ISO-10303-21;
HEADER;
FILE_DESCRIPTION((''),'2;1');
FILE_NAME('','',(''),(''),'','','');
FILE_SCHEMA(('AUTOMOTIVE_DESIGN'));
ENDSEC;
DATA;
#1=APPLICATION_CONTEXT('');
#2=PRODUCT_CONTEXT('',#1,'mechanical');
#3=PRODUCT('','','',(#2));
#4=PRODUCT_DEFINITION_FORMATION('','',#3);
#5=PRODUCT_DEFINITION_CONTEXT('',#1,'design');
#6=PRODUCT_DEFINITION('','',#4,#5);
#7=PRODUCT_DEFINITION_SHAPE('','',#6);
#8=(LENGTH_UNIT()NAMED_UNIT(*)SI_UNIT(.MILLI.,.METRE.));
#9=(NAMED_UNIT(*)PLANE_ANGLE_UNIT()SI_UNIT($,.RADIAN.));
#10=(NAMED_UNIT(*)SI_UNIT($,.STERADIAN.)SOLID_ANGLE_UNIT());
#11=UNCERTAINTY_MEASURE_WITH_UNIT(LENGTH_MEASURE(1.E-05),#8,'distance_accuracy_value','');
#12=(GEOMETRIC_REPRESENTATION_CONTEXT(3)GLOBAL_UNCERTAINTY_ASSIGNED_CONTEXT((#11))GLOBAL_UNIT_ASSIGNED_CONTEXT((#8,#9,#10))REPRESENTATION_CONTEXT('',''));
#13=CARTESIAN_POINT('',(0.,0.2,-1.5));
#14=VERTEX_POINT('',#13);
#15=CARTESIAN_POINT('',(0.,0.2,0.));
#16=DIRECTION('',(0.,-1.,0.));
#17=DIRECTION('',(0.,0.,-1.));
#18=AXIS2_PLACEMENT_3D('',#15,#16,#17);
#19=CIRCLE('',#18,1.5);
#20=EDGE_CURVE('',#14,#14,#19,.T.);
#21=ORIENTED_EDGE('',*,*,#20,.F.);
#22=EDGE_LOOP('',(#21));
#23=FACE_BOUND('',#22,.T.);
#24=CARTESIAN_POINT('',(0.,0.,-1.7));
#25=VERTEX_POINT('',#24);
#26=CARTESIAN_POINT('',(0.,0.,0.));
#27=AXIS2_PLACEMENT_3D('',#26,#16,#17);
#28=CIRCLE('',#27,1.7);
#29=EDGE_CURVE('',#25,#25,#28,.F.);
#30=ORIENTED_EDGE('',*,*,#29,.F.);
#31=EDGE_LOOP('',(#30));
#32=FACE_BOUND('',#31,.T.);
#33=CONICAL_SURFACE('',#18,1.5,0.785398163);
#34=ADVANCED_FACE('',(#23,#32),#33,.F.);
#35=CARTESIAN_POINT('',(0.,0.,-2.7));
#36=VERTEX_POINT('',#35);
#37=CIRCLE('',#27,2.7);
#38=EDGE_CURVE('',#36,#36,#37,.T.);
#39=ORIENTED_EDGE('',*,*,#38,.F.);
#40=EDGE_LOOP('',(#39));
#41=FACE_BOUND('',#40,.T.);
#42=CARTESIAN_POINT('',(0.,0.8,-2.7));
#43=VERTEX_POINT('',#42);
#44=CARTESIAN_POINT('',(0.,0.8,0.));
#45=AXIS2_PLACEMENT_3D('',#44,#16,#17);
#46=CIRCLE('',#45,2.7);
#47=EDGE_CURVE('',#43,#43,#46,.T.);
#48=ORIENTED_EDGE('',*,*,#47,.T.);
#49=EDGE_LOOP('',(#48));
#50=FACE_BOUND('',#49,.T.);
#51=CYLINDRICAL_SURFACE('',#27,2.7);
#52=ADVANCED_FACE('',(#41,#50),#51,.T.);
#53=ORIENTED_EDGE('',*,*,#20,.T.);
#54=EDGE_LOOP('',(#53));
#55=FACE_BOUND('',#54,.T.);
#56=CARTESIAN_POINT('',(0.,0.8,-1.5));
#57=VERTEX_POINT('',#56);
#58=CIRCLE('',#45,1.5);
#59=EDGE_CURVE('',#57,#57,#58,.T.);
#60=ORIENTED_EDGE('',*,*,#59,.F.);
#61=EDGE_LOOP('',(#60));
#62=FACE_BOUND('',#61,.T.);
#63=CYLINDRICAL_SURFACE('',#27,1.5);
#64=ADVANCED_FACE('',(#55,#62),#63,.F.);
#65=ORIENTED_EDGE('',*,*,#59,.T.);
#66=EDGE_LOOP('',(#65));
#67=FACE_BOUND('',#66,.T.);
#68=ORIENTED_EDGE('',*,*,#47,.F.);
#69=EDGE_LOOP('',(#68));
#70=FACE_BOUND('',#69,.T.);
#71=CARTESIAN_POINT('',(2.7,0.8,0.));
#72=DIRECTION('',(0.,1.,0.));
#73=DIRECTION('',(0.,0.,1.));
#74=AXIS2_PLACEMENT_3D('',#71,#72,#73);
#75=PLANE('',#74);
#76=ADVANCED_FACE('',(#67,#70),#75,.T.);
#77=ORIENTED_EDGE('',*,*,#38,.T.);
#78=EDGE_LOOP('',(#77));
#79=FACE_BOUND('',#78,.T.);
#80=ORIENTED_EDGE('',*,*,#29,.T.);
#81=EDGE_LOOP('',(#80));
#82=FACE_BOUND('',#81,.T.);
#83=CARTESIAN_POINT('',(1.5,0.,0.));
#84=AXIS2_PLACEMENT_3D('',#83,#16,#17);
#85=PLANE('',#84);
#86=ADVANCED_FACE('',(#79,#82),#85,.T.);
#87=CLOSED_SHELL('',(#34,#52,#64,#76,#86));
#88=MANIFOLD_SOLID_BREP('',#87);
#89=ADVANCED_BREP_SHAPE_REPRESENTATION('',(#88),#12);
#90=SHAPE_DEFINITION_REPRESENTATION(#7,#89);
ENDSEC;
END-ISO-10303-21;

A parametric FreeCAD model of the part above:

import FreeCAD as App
import Part
import Sketcher

V = App.Vector


def edges_at(feature, points):
    """Names of the edges that pass closest to the given points."""
    edges = feature.Shape.Edges
    near = lambda p: min(range(len(edges)), key=lambda i: edges[i].distToShape(Part.Vertex(*p))[0])
    return sorted({f"Edge{near(p) + 1}" for p in points})

doc = App.newDocument("Part")
body = doc.addObject("PartDesign::Body", "Body")

# Sketch on XY plane
sketch1 = body.newObject("Sketcher::SketchObject", "Sketch")
sketch1.AttachmentSupport = (doc.getObject("XY_Plane"), [""])
sketch1.MapMode = "FlatFace"
sketch1.addGeometry(Part.LineSegment(V(1.5, 0.8, 0), V(1.5, 0, 0)), False)
sketch1.addGeometry(Part.LineSegment(V(1.5, 0, 0), V(2.7, 0, 0)), False)
sketch1.addGeometry(Part.LineSegment(V(2.7, 0, 0), V(2.7, 0.8, 0)), False)
sketch1.addGeometry(Part.LineSegment(V(2.7, 0.8, 0), V(1.5, 0.8, 0)), False)
sketch1.addConstraint(Sketcher.Constraint("Coincident", 0, 2, 1, 1))
sketch1.addConstraint(Sketcher.Constraint("Coincident", 1, 2, 2, 1))
sketch1.addConstraint(Sketcher.Constraint("Coincident", 2, 2, 3, 1))
sketch1.addConstraint(Sketcher.Constraint("Coincident", 3, 2, 0, 1))
sketch1.addConstraint(Sketcher.Constraint("Vertical", 0))
sketch1.addConstraint(Sketcher.Constraint("Horizontal", 1))
sketch1.addConstraint(Sketcher.Constraint("Vertical", 2))
sketch1.addConstraint(Sketcher.Constraint("Horizontal", 3))
sketch1.addConstraint(Sketcher.Constraint("PointOnObject", 0, 2, -1))
sketch1.addConstraint(Sketcher.Constraint("DistanceX", 1, 1, 1, 2, 1.2))
sketch1.addConstraint(Sketcher.Constraint("DistanceY", 0, 2, 0, 1, 0.8))
sketch1.addConstraint(Sketcher.Constraint("DistanceX", -1, 1, 0, 2, 1.5))
revolution = body.newObject("PartDesign::Revolution", "Revolution")
revolution.Profile = sketch1
revolution.ReferenceAxis = (sketch1, ["V_Axis"])
revolution.Angle = 360
doc.recompute()

chamfer = body.newObject("PartDesign::Chamfer", "Chamfer")
chamfer.Base = (revolution, edges_at(revolution, [(-1.5, 0, 0)]))
chamfer.Size = 0.2

doc.recompute()
